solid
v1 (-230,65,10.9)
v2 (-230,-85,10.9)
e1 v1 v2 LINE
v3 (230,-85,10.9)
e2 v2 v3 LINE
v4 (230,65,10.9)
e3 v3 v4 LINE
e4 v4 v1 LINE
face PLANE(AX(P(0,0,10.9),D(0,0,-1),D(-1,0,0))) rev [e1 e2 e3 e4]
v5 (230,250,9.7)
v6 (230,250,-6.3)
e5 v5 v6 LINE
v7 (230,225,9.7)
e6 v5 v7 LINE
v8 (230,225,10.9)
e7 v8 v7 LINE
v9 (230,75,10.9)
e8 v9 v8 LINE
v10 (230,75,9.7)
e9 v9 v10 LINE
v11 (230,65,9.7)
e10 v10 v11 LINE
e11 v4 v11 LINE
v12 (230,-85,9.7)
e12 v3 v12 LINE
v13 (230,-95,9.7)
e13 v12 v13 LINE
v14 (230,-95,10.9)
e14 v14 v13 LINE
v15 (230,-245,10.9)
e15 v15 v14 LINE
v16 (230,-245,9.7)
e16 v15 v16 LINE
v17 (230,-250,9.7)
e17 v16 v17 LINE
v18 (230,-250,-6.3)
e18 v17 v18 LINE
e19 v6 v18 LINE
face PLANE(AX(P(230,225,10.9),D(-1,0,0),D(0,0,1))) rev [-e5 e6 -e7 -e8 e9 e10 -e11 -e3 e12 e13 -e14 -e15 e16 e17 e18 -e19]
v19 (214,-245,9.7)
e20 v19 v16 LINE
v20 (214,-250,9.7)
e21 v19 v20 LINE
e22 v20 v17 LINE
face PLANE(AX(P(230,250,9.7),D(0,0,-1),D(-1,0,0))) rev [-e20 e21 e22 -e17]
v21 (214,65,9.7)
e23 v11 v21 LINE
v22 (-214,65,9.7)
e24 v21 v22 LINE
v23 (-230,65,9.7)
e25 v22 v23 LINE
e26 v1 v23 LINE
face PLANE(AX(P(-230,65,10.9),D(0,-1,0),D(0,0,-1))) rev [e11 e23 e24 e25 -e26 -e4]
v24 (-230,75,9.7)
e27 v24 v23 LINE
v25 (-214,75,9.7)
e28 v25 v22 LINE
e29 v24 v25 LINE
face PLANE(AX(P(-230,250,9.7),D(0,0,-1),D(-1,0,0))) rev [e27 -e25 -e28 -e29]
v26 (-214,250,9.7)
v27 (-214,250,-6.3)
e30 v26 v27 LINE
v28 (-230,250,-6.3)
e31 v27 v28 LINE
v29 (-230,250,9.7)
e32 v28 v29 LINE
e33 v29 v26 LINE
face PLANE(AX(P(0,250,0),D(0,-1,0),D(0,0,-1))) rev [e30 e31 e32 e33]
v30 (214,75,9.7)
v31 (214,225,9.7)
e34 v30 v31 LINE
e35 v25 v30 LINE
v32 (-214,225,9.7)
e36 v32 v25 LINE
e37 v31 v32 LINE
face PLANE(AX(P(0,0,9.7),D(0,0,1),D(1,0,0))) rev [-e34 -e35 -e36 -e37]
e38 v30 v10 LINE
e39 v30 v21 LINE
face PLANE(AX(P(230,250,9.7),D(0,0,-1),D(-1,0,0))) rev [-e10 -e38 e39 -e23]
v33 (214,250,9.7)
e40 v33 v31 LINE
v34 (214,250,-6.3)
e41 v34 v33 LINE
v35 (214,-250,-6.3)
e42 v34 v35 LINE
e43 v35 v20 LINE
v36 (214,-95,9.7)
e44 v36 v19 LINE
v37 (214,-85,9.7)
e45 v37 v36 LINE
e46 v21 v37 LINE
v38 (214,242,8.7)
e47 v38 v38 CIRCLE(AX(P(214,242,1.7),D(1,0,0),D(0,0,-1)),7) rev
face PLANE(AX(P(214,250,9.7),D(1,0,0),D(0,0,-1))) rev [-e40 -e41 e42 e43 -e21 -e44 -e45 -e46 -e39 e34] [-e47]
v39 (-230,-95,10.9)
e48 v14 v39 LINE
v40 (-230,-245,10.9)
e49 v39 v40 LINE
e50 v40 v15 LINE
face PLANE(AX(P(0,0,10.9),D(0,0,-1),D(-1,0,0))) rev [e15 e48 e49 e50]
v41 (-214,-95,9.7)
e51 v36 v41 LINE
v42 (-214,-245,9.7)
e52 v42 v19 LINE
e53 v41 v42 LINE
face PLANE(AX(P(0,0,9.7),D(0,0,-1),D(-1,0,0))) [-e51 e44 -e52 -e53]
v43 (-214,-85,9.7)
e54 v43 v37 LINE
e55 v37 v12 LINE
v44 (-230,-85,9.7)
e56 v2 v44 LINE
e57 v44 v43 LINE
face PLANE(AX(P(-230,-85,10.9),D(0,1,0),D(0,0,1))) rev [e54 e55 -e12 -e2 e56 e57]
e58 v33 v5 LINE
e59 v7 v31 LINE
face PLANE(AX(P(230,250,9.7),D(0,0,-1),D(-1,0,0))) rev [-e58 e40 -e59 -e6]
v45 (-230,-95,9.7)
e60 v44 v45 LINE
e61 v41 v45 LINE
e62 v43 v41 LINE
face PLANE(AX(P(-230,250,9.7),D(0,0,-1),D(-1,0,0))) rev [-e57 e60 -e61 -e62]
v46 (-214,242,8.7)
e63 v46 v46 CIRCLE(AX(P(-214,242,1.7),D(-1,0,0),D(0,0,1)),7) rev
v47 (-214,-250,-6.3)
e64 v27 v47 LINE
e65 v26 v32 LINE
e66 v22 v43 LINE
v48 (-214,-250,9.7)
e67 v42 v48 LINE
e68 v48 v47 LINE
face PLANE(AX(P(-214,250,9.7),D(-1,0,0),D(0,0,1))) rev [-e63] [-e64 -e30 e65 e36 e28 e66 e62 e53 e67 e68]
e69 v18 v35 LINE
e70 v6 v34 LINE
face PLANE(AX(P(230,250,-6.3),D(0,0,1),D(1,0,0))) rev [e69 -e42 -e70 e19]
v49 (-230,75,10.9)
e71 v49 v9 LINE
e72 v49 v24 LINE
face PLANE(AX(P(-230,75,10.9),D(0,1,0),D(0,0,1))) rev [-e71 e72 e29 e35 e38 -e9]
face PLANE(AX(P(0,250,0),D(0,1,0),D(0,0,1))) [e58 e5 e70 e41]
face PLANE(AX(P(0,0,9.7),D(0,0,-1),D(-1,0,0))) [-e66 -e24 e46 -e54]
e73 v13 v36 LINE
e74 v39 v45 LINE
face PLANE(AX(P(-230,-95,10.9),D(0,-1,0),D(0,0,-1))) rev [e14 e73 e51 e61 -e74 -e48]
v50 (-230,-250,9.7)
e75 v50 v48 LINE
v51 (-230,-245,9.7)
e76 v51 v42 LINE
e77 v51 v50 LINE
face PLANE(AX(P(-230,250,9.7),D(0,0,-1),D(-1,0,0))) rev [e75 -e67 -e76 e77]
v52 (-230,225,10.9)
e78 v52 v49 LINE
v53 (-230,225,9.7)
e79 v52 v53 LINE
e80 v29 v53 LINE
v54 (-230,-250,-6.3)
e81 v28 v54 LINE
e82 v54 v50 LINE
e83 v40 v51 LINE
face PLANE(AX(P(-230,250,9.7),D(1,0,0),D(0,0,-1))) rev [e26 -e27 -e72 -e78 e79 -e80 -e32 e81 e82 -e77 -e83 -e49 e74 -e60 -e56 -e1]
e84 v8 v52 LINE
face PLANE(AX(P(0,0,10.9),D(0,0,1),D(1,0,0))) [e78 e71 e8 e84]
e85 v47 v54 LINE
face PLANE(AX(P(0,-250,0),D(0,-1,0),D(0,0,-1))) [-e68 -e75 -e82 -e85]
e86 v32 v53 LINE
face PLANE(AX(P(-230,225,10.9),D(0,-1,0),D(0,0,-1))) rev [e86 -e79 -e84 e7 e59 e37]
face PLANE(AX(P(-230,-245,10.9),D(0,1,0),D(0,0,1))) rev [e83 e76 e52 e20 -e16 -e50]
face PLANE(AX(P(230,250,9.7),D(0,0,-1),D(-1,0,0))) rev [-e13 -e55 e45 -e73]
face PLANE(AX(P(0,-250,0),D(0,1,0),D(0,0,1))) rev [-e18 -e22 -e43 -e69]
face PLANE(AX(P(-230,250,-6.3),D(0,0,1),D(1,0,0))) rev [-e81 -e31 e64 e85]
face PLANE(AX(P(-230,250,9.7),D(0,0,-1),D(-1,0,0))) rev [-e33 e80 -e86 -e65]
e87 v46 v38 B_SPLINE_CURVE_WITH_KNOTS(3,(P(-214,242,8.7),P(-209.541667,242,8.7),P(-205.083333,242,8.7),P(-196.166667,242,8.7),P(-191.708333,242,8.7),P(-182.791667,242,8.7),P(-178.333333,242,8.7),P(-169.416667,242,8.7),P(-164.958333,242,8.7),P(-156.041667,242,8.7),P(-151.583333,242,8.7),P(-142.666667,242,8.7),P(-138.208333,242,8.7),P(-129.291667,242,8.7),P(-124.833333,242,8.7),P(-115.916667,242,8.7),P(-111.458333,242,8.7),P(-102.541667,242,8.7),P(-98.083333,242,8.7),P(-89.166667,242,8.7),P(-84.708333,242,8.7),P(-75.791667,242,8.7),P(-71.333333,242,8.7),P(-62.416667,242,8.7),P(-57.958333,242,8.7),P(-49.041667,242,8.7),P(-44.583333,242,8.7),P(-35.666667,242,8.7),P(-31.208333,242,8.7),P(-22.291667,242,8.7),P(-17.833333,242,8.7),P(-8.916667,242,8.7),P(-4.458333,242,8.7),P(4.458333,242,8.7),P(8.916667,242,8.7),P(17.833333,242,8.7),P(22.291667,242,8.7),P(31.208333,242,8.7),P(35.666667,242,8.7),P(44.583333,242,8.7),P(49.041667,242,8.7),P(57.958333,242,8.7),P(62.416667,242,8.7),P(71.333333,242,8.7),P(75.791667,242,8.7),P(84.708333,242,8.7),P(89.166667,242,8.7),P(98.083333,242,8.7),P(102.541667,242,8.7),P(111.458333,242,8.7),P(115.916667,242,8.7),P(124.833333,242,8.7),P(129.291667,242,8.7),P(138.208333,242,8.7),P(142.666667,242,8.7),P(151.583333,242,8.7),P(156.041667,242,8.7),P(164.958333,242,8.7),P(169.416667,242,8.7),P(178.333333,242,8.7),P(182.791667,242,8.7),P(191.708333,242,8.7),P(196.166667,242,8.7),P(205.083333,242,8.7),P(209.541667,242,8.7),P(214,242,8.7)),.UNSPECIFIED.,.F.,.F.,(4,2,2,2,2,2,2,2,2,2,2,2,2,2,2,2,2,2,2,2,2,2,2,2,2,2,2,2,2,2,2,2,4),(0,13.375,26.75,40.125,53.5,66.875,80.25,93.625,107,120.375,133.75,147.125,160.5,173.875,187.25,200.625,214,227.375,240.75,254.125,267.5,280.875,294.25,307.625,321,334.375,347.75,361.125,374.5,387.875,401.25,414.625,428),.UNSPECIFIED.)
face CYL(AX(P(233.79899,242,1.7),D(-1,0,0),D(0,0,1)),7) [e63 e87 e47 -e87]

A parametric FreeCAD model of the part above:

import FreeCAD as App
import Part
import Sketcher
Q = App.Units.Quantity

doc = App.newDocument("Part")
body = doc.addObject("PartDesign::Body", "Body")

# Sketch on XZ plane
sketch1 = body.newObject("Sketcher::SketchObject", "Sketch")
sketch1.AttachmentSupport = (doc.getObject("XZ_Plane"), [""])
sketch1.MapMode = "FlatFace"
sketch1.addGeometry([
    Part.LineSegment(App.Vector(-230, -6.3, 0), App.Vector(-230, 9.7, 0)),
    Part.LineSegment(App.Vector(-230, 9.7, 0), App.Vector(-214, 9.7, 0)),
    Part.LineSegment(App.Vector(-214, 9.7, 0), App.Vector(-214, -6.3, 0)),
    Part.LineSegment(App.Vector(-214, -6.3, 0), App.Vector(-230, -6.3, 0)),
], False)
sketch1.addConstraint([
    Sketcher.Constraint("Coincident", 0, 2, 1, 1),
    Sketcher.Constraint("Coincident", 1, 2, 2, 1),
    Sketcher.Constraint("Coincident", 2, 2, 3, 1),
    Sketcher.Constraint("Coincident", 3, 2, 0, 1),
    Sketcher.Constraint("Vertical", 0),
    Sketcher.Constraint("Horizontal", 1),
    Sketcher.Constraint("Vertical", 2),
    Sketcher.Constraint("Horizontal", 3),
    Sketcher.Constraint("Equal", 3, 0),
    Sketcher.Constraint("DistanceX", 1, 1, 1, 2, Q("16 mm")),
    Sketcher.Constraint("DistanceX", 0, 2, -1, 1, Q("230 mm")),
    Sketcher.Constraint("DistanceY", -1, 1, 0, 2, Q("9.7 mm")),
])
pad1 = body.newObject("PartDesign::Pad", "Pad")
pad1.Profile = sketch1
pad1.Length = 500
pad1.Midplane = True
body2 = doc.addObject("PartDesign::Body", "Body001")

# Sketch on XZ plane
sketch2 = body2.newObject("Sketcher::SketchObject", "Sketch001")
sketch2.AttachmentSupport = (doc.getObject("XZ_Plane001"), [""])
sketch2.MapMode = "FlatFace"
sketch2.addGeometry([
    Part.LineSegment(App.Vector(214, -6.3, 0), App.Vector(214, 9.7, 0)),
    Part.LineSegment(App.Vector(214, 9.7, 0), App.Vector(230, 9.7, 0)),
    Part.LineSegment(App.Vector(230, 9.7, 0), App.Vector(230, -6.3, 0)),
    Part.LineSegment(App.Vector(230, -6.3, 0), App.Vector(214, -6.3, 0)),
], False)
sketch2.addConstraint([
    Sketcher.Constraint("Coincident", 0, 2, 1, 1),
    Sketcher.Constraint("Coincident", 1, 2, 2, 1),
    Sketcher.Constraint("Coincident", 2, 2, 3, 1),
    Sketcher.Constraint("Coincident", 3, 2, 0, 1),
    Sketcher.Constraint("Vertical", 0),
    Sketcher.Constraint("Horizontal", 1),
    Sketcher.Constraint("Vertical", 2),
    Sketcher.Constraint("Horizontal", 3),
    Sketcher.Constraint("Equal", 3, 0),
    Sketcher.Constraint("DistanceX", 1, 1, 1, 2, Q("16 mm")),
    Sketcher.Constraint("DistanceX", -1, 1, 0, 2, Q("214 mm")),
    Sketcher.Constraint("DistanceY", -1, 1, 0, 2, Q("9.7 mm")),
])
pad2 = body2.newObject("PartDesign::Pad", "Pad001")
pad2.Profile = sketch2
pad2.Length = 500
pad2.Midplane = True
body.AllowCompound = True
doc.recompute()

boolean = body.newObject("PartDesign::Boolean", "Boolean")
boolean.Type = "Fuse"
boolean.addObjects([body2])

# Sketch on XY plane
sketch3 = body.newObject("Sketcher::SketchObject", "Sketch002")
sketch3.AttachmentSupport = (doc.getObject("XY_Plane"), [""])
sketch3.MapMode = "FlatFace"
sketch3.AttachmentOffset = App.Placement(App.Vector(0, 0, 9.7), App.Rotation())
sketch3.addGeometry([
    Part.LineSegment(App.Vector(-230, 225, 0), App.Vector(-230, 75, 0)),  # 0
    Part.LineSegment(App.Vector(-230, 75, 0), App.Vector(230, 75, 0)),  # 1
    Part.LineSegment(App.Vector(230, 75, 0), App.Vector(230, 225, 0)),  # 2
    Part.LineSegment(App.Vector(230, 225, 0), App.Vector(-230, 225, 0)),  # 3
    Part.LineSegment(App.Vector(-230, 65, 0), App.Vector(-230, -85, 0)),  # 4
    Part.LineSegment(App.Vector(-230, -85, 0), App.Vector(230, -85, 0)),  # 5
    Part.LineSegment(App.Vector(230, -85, 0), App.Vector(230, 65, 0)),  # 6
    Part.LineSegment(App.Vector(230, 65, 0), App.Vector(-230, 65, 0)),  # 7
    Part.LineSegment(App.Vector(-230, -95, 0), App.Vector(-230, -245, 0)),  # 8
    Part.LineSegment(App.Vector(-230, -245, 0), App.Vector(230, -245, 0)),  # 9
    Part.LineSegment(App.Vector(230, -245, 0), App.Vector(230, -95, 0)),  # 10
    Part.LineSegment(App.Vector(230, -95, 0), App.Vector(-230, -95, 0)),  # 11
], False)
sketch3.addConstraint([
    Sketcher.Constraint("Coincident", 0, 2, 1, 1),
    Sketcher.Constraint("Coincident", 1, 2, 2, 1),
    Sketcher.Constraint("Coincident", 2, 2, 3, 1),
    Sketcher.Constraint("Coincident", 3, 2, 0, 1),
    Sketcher.Constraint("Coincident", 4, 2, 5, 1),
    Sketcher.Constraint("Coincident", 5, 2, 6, 1),
    Sketcher.Constraint("Coincident", 6, 2, 7, 1),
    Sketcher.Constraint("Coincident", 7, 2, 4, 1),
    Sketcher.Constraint("Coincident", 8, 2, 9, 1),
    Sketcher.Constraint("Coincident", 9, 2, 10, 1),
    Sketcher.Constraint("Coincident", 10, 2, 11, 1),
    Sketcher.Constraint("Coincident", 11, 2, 8, 1),
    Sketcher.Constraint("Vertical", 0),
    Sketcher.Constraint("Horizontal", 1),
    Sketcher.Constraint("Vertical", 2),
    Sketcher.Constraint("Horizontal", 3),
    Sketcher.Constraint("Vertical", 4),
    Sketcher.Constraint("Horizontal", 5),
    Sketcher.Constraint("Vertical", 6),
    Sketcher.Constraint("Horizontal", 7),
    Sketcher.Constraint("Vertical", 8),
    Sketcher.Constraint("Horizontal", 9),
    Sketcher.Constraint("Vertical", 10),
    Sketcher.Constraint("Horizontal", 11),
    Sketcher.Constraint("Vertical", 3, 2, 4, 2),
    Sketcher.Constraint("Vertical", 2, 2, 5, 2),
    Sketcher.Constraint("Vertical", 7, 2, 8, 2),
    Sketcher.Constraint("Vertical", 6, 2, 9, 2),
    Sketcher.Constraint("Equal", 2, 4),
    Sketcher.Constraint("Equal", 6, 8),
    Sketcher.Constraint("DistanceX", 1, 1, 1, 2, Q("460 mm")),
    Sketcher.Constraint("DistanceY", 0, 2, 0, 1, Q("150 mm")),
    Sketcher.Constraint("DistanceX", 0, 2, -1, 1, Q("230 mm")),
    Sketcher.Constraint("DistanceY", -1, 1, 0, 2, Q("75 mm")),
    Sketcher.Constraint("DistanceY", 4, 2, -1, 1, Q("85 mm")),
    Sketcher.Constraint("DistanceY", 8, 2, -1, 1, Q("245 mm")),
])
pad3 = body.newObject("PartDesign::Pad", "Pad002")
pad3.Profile = sketch3
pad3.Length = 1.2

# Sketch on YZ plane
sketch4 = body.newObject("Sketcher::SketchObject", "Sketch003")
sketch4.AttachmentSupport = (doc.getObject("YZ_Plane"), [""])
sketch4.MapMode = "FlatFace"
sketch4.AttachmentOffset = App.Placement(App.Vector(0, 0, -214), App.Rotation())
sketch4.addGeometry(Part.Circle(App.Vector(242, 1.7, 0), App.Vector(0, 0, 1), 7), False)
sketch4.addConstraint([
    Sketcher.Constraint("Diameter", 0, Q("14 mm")),
    Sketcher.Constraint("DistanceX", -1, 1, 0, 3, Q("242 mm")),
    Sketcher.Constraint("DistanceY", -1, 1, 0, 3, Q("1.7 mm")),
])
pad4 = body.newObject("PartDesign::Pad", "Pad003")
pad4.Profile = sketch4
pad4.Length = 428

doc.recompute()
